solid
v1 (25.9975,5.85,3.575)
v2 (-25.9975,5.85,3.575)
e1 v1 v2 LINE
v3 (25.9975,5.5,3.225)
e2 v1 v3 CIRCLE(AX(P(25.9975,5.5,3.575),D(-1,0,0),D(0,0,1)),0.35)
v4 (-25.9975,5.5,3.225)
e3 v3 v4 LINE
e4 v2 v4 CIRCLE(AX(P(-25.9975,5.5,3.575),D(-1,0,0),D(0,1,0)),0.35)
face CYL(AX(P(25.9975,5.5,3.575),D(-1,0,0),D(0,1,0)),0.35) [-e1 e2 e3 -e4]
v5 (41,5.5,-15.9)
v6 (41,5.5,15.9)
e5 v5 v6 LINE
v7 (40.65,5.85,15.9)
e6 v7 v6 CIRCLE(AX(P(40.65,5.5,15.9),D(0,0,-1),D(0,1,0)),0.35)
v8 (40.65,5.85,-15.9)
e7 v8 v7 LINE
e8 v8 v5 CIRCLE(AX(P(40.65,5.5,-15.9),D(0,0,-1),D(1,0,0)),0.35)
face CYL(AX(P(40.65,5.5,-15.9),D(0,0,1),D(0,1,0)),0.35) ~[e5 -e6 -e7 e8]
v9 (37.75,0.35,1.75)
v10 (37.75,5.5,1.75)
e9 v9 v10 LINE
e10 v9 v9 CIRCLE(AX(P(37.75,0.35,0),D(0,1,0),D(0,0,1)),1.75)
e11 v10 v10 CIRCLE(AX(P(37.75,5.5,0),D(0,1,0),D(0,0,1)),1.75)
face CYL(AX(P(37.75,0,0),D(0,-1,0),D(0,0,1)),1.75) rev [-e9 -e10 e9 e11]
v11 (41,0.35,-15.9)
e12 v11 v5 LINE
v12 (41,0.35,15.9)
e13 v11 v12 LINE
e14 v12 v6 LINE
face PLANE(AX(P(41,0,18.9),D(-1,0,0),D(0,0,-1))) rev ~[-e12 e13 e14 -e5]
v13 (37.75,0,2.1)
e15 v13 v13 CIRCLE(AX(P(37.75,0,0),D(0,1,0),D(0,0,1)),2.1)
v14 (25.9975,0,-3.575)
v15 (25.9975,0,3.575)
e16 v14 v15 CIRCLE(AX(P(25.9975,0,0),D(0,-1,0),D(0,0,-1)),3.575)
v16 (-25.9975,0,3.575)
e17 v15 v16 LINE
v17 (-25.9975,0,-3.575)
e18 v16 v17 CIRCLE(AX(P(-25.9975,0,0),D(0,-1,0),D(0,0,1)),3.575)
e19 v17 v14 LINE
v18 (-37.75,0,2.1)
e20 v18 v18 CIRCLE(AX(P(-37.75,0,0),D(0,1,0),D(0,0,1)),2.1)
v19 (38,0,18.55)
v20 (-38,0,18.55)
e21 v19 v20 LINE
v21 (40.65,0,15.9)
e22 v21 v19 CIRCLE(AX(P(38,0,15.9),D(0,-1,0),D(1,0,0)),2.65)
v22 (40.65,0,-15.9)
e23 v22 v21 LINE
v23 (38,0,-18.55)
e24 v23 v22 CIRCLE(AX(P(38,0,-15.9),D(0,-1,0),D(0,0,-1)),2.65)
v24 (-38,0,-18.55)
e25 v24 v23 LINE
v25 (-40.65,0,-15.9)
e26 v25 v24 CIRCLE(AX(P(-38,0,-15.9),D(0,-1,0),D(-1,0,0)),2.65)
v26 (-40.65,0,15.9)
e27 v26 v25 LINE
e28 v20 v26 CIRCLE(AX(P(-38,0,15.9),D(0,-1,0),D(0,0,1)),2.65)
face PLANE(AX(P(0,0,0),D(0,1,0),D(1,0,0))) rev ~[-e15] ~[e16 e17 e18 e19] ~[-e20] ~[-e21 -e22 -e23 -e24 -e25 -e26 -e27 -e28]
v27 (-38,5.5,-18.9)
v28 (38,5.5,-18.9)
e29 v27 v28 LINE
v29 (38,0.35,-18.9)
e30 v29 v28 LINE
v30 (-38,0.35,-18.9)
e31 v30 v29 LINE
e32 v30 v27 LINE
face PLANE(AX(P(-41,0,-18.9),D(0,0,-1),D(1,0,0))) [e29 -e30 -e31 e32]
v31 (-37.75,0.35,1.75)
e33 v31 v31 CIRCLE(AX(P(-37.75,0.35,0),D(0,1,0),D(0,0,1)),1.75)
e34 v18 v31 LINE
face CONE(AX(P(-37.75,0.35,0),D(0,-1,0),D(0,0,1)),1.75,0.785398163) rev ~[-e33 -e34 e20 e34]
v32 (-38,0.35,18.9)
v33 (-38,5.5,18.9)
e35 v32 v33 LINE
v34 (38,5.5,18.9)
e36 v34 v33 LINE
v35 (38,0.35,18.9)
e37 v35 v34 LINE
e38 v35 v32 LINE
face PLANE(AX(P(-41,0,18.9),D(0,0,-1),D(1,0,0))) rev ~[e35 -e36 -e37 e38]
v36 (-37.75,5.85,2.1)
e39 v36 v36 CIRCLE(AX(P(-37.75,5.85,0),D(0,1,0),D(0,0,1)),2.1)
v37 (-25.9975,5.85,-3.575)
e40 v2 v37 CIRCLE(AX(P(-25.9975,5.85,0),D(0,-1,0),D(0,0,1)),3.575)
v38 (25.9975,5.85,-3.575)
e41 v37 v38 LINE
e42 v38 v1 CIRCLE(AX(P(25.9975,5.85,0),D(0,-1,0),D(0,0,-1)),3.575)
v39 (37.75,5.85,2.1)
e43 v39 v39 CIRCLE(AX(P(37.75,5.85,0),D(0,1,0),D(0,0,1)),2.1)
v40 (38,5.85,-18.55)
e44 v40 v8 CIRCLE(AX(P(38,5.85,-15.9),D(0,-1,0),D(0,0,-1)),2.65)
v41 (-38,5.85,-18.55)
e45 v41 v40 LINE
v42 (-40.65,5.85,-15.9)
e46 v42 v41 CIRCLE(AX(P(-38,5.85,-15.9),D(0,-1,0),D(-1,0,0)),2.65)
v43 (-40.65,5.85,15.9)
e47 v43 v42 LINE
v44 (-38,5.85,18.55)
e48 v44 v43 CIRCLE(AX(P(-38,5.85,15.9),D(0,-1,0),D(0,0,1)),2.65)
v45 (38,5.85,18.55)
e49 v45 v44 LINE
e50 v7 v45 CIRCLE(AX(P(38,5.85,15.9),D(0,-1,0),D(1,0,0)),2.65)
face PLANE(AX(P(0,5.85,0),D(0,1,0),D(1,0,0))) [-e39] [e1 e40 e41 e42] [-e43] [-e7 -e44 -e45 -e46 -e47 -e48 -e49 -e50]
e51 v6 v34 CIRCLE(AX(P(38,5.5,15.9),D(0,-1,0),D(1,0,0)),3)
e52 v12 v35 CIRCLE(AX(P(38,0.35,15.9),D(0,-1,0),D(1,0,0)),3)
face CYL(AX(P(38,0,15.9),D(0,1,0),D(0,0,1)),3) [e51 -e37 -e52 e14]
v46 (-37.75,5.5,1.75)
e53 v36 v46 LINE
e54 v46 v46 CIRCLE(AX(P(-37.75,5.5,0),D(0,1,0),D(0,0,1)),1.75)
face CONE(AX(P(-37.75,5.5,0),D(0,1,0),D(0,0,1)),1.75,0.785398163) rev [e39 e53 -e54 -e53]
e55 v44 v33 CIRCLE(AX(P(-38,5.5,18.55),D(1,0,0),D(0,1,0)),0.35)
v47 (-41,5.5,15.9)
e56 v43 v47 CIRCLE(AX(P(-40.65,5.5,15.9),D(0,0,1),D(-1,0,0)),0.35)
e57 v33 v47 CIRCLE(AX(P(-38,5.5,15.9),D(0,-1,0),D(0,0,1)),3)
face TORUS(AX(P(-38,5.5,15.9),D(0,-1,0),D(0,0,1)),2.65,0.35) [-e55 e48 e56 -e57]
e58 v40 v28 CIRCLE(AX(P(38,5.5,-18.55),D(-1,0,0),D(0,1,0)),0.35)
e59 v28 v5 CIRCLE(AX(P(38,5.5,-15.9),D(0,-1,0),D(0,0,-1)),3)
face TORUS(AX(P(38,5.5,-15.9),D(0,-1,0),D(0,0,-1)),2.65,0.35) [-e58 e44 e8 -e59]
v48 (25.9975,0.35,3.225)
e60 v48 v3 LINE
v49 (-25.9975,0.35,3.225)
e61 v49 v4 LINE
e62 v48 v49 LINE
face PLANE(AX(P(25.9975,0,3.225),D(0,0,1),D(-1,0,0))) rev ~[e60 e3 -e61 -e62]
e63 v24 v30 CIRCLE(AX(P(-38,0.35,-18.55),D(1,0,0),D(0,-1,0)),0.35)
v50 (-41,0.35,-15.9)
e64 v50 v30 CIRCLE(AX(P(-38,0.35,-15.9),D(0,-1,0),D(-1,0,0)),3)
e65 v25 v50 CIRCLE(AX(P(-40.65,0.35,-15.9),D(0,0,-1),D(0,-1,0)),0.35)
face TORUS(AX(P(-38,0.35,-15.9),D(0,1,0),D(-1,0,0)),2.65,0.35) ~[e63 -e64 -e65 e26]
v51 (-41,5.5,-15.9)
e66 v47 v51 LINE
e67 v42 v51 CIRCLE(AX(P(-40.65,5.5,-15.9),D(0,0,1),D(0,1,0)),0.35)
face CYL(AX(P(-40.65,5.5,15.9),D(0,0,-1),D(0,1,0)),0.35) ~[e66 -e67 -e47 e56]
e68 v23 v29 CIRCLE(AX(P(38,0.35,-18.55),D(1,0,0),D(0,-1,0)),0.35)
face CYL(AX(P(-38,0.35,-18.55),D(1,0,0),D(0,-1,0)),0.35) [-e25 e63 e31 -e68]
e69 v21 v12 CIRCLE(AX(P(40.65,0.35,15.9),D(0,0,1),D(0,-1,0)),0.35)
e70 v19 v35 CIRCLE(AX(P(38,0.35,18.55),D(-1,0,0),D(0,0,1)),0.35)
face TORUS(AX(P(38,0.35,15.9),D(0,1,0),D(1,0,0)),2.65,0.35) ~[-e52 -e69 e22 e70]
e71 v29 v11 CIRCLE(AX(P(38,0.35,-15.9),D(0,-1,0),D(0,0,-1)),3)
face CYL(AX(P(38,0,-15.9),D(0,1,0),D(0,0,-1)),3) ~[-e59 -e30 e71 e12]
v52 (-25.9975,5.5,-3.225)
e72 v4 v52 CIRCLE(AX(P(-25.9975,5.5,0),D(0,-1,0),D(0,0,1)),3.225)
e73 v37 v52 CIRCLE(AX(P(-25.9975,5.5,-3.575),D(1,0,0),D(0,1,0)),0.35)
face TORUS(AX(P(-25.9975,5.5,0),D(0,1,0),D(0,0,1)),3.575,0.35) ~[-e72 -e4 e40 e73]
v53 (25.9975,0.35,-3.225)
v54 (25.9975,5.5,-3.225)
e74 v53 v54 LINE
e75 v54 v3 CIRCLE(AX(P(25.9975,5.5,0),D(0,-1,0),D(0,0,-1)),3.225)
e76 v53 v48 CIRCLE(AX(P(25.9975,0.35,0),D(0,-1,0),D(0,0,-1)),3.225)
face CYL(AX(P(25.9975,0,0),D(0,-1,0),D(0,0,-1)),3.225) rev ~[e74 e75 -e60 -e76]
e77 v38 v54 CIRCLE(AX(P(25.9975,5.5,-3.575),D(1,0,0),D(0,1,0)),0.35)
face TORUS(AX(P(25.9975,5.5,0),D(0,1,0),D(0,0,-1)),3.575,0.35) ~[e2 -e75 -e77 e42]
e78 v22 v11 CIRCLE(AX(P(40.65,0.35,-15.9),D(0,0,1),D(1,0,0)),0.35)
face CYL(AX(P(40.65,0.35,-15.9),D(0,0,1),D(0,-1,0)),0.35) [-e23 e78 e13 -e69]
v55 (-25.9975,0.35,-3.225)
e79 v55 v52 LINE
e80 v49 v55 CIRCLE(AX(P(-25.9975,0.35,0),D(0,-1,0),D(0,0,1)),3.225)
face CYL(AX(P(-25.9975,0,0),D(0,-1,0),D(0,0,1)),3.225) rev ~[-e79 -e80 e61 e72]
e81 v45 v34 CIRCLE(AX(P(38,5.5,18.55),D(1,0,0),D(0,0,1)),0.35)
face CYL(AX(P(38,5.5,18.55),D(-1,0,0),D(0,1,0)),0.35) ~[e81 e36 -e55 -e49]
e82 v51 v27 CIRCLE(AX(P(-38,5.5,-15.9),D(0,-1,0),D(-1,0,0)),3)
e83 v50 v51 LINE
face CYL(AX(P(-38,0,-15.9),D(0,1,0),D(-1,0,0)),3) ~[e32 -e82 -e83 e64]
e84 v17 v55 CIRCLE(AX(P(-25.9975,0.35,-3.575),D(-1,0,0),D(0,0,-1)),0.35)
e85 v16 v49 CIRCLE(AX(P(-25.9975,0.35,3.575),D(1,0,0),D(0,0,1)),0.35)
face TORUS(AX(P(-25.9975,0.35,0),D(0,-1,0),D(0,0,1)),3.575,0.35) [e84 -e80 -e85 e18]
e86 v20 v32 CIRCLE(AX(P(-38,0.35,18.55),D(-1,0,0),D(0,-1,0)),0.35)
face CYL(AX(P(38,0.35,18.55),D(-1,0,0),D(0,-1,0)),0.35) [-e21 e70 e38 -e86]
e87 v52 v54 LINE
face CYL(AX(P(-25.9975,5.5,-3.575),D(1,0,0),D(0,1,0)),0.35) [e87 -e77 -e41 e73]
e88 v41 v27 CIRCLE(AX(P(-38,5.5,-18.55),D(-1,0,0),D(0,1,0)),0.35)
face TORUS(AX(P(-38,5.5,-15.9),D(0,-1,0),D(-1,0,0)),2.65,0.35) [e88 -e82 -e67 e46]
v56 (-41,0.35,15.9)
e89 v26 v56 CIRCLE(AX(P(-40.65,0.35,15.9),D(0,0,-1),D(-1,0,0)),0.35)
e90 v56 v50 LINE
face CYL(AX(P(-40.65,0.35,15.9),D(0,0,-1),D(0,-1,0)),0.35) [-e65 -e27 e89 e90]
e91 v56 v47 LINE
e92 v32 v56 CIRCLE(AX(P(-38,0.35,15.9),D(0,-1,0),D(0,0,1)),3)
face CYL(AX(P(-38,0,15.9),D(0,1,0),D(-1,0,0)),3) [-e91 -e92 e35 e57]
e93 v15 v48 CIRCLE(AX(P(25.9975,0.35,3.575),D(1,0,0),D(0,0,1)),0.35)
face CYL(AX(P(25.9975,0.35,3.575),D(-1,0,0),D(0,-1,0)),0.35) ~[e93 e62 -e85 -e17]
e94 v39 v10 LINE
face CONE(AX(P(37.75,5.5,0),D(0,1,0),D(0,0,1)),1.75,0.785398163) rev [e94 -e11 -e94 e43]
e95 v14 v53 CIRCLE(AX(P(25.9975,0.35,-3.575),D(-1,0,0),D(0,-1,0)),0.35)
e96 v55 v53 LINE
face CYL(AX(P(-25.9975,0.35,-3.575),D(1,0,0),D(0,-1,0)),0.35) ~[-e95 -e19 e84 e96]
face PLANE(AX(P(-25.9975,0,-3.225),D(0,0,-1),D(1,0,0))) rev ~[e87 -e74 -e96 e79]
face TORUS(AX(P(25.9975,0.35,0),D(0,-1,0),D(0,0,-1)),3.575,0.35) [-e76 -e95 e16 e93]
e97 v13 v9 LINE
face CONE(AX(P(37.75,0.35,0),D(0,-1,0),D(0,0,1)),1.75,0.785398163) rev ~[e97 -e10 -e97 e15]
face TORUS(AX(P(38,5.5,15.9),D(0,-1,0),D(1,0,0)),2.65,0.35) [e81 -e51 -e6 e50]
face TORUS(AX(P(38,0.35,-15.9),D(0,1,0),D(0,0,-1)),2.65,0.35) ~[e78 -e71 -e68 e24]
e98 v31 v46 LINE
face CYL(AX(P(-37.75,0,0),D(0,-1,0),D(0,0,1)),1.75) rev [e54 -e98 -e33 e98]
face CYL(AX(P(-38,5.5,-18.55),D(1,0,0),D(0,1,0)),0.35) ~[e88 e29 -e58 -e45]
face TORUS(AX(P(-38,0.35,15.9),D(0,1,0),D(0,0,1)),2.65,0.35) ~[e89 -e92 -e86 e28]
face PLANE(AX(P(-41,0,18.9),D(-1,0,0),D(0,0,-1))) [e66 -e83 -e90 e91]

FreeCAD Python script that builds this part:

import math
import FreeCAD as App
import Part
import Sketcher

V = App.Vector
Q = App.Units.Quantity


def edges_at(feature, points):
    """Names of the edges that pass closest to the given points."""
    edges = feature.Shape.Edges
    near = lambda p: min(range(len(edges)), key=lambda i: edges[i].distToShape(Part.Vertex(*p))[0])
    return sorted({f"Edge{near(p) + 1}" for p in points})


def add_polygon(sketch, points):
    """Adds a closed chain of lines whose ends are joined by coincident constraints."""
    first, n = sketch.GeometryCount, len(points)
    for a, b in zip(points, points[1:] + points[:1]):
        sketch.addGeometry(Part.LineSegment(App.Vector(*a, 0), App.Vector(*b, 0)), False)
    for i in range(n):
        sketch.addConstraint(Sketcher.Constraint("Coincident", first + i, 2, first + (i + 1) % n, 1))

doc = App.newDocument("Part")
body = doc.addObject("PartDesign::Body", "Body")

# Sketch on XZ plane
sketch1 = body.newObject("Sketcher::SketchObject", "Sketch")
sketch1.AttachmentSupport = (doc.getObject("XZ_Plane"), [""])
sketch1.MapMode = "FlatFace"
add_polygon(sketch1, [(-41, -18.9), (-41, 18.9), (41, 18.9), (41, -18.9)])  # lines 0-3
sketch1.addGeometry(Part.Circle(V(-37.75, 0, 0), V(0, 0, 1), 1.75), False)  # 4
sketch1.addGeometry(Part.ArcOfCircle(Part.Circle(V(-25.9975, 0, 0), V(0, 0, 1), 3.225), math.radians(90), math.radians(270)), False)  # 5
sketch1.addGeometry(Part.LineSegment(V(-25.9975, -3.225, 0), V(25.9975, -3.225, 0)), False)  # 6
sketch1.addGeometry(Part.ArcOfCircle(Part.Circle(V(25.9975, 0, 0), V(0, 0, 1), 3.225), math.radians(-90), math.radians(90)), False)  # 7
sketch1.addGeometry(Part.LineSegment(V(25.9975, 3.225, 0), V(-25.9975, 3.225, 0)), False)  # 8
sketch1.addGeometry(Part.Circle(V(37.75, 0, 0), V(0, 0, 1), 1.75), False)  # 9
sketch1.addConstraint([
    Sketcher.Constraint("Tangent", 5, 2, 6, 1),
    Sketcher.Constraint("Tangent", 6, 2, 7, 1),
    Sketcher.Constraint("Tangent", 7, 2, 8, 1),
    Sketcher.Constraint("Tangent", 8, 2, 5, 1),
    Sketcher.Constraint("Vertical", 0),
    Sketcher.Constraint("Horizontal", 1),
    Sketcher.Constraint("Vertical", 2),
    Sketcher.Constraint("Horizontal", 3),
    Sketcher.Constraint("Horizontal", 6),
    Sketcher.Constraint("Horizontal", 8),
    Sketcher.Constraint("Equal", 4, 9),
    Sketcher.Constraint("Symmetric", 5, 3, 7, 3, -1, 1),
    Sketcher.Constraint("Symmetric", 4, 3, 9, 3, -1, 1),
    Sketcher.Constraint("Symmetric", 0, 2, 2, 2, -1, 1),
    Sketcher.Constraint("PointOnObject", 4, 3, -1),
    Sketcher.Constraint("Diameter", 4, Q("3.5 mm")),
    Sketcher.Constraint("DistanceX", 1, 1, 1, 2, Q("82 mm")),
    Sketcher.Constraint("DistanceY", 0, 1, 0, 2, Q("37.8 mm")),
    Sketcher.Constraint("Radius", 5, Q("3.225 mm")),
    Sketcher.Constraint("DistanceX", 4, 3, 9, 3, Q("75.5 mm")),
    Sketcher.Constraint("DistanceX", 6, 1, 6, 2, Q("51.995 mm")),
])
pad1 = body.newObject("PartDesign::Pad", "Pad")
pad1.Profile = sketch1
pad1.Length = 5.85
pad1.Reversed = True
doc.recompute()

fillet = body.newObject("PartDesign::Fillet", "Fillet")
fillet.Base = (pad1, edges_at(pad1, [
    (-41, 2.925, -18.9),
    (41, 2.925, -18.9),
    (41, 2.925, 18.9),
    (-41, 2.925, 18.9),
]))
fillet.Radius = 3
doc.recompute()

fillet2 = body.newObject("PartDesign::Fillet", "Fillet001")
fillet2.Base = (fillet, edges_at(fillet, [
    (-29.223, 0, 0),
    (0, 0, 3.225),
    (29.223, 0, 0),
    (0, 0, -3.225),
    (0, 5.85, -3.225),
    (-29.223, 5.85, 0),
    (0, 5.85, 3.225),
    (29.223, 5.85, 0),
    (0, 0, -18.9),
    (0, 5.85, -18.9),
    (-41, 0, 0),
    (41, 0, 0),
    (0, 0, 18.9),
    (-40.121, 0, 18.021),
    (-40.121, 0, -18.021),
    (40.121, 0, 18.021),
    (40.121, 0, -18.021),
    (41, 5.85, 0),
    (-41, 5.85, 0),
    (0, 5.85, 18.9),
    (-40.121, 5.85, 18.021),
    (-40.121, 5.85, -18.021),
    (40.121, 5.85, 18.021),
    (40.121, 5.85, -18.021),
]))
fillet2.Radius = 0.35
doc.recompute()

chamfer = body.newObject("PartDesign::Chamfer", "Chamfer")
chamfer.Base = (fillet2, edges_at(fillet2, [
    (37.75, 0, -1.75),
    (37.75, 5.85, -1.75),
    (-37.75, 0, -1.75),
    (-37.75, 5.85, -1.75),
]))
chamfer.Size = 0.35

doc.recompute()
